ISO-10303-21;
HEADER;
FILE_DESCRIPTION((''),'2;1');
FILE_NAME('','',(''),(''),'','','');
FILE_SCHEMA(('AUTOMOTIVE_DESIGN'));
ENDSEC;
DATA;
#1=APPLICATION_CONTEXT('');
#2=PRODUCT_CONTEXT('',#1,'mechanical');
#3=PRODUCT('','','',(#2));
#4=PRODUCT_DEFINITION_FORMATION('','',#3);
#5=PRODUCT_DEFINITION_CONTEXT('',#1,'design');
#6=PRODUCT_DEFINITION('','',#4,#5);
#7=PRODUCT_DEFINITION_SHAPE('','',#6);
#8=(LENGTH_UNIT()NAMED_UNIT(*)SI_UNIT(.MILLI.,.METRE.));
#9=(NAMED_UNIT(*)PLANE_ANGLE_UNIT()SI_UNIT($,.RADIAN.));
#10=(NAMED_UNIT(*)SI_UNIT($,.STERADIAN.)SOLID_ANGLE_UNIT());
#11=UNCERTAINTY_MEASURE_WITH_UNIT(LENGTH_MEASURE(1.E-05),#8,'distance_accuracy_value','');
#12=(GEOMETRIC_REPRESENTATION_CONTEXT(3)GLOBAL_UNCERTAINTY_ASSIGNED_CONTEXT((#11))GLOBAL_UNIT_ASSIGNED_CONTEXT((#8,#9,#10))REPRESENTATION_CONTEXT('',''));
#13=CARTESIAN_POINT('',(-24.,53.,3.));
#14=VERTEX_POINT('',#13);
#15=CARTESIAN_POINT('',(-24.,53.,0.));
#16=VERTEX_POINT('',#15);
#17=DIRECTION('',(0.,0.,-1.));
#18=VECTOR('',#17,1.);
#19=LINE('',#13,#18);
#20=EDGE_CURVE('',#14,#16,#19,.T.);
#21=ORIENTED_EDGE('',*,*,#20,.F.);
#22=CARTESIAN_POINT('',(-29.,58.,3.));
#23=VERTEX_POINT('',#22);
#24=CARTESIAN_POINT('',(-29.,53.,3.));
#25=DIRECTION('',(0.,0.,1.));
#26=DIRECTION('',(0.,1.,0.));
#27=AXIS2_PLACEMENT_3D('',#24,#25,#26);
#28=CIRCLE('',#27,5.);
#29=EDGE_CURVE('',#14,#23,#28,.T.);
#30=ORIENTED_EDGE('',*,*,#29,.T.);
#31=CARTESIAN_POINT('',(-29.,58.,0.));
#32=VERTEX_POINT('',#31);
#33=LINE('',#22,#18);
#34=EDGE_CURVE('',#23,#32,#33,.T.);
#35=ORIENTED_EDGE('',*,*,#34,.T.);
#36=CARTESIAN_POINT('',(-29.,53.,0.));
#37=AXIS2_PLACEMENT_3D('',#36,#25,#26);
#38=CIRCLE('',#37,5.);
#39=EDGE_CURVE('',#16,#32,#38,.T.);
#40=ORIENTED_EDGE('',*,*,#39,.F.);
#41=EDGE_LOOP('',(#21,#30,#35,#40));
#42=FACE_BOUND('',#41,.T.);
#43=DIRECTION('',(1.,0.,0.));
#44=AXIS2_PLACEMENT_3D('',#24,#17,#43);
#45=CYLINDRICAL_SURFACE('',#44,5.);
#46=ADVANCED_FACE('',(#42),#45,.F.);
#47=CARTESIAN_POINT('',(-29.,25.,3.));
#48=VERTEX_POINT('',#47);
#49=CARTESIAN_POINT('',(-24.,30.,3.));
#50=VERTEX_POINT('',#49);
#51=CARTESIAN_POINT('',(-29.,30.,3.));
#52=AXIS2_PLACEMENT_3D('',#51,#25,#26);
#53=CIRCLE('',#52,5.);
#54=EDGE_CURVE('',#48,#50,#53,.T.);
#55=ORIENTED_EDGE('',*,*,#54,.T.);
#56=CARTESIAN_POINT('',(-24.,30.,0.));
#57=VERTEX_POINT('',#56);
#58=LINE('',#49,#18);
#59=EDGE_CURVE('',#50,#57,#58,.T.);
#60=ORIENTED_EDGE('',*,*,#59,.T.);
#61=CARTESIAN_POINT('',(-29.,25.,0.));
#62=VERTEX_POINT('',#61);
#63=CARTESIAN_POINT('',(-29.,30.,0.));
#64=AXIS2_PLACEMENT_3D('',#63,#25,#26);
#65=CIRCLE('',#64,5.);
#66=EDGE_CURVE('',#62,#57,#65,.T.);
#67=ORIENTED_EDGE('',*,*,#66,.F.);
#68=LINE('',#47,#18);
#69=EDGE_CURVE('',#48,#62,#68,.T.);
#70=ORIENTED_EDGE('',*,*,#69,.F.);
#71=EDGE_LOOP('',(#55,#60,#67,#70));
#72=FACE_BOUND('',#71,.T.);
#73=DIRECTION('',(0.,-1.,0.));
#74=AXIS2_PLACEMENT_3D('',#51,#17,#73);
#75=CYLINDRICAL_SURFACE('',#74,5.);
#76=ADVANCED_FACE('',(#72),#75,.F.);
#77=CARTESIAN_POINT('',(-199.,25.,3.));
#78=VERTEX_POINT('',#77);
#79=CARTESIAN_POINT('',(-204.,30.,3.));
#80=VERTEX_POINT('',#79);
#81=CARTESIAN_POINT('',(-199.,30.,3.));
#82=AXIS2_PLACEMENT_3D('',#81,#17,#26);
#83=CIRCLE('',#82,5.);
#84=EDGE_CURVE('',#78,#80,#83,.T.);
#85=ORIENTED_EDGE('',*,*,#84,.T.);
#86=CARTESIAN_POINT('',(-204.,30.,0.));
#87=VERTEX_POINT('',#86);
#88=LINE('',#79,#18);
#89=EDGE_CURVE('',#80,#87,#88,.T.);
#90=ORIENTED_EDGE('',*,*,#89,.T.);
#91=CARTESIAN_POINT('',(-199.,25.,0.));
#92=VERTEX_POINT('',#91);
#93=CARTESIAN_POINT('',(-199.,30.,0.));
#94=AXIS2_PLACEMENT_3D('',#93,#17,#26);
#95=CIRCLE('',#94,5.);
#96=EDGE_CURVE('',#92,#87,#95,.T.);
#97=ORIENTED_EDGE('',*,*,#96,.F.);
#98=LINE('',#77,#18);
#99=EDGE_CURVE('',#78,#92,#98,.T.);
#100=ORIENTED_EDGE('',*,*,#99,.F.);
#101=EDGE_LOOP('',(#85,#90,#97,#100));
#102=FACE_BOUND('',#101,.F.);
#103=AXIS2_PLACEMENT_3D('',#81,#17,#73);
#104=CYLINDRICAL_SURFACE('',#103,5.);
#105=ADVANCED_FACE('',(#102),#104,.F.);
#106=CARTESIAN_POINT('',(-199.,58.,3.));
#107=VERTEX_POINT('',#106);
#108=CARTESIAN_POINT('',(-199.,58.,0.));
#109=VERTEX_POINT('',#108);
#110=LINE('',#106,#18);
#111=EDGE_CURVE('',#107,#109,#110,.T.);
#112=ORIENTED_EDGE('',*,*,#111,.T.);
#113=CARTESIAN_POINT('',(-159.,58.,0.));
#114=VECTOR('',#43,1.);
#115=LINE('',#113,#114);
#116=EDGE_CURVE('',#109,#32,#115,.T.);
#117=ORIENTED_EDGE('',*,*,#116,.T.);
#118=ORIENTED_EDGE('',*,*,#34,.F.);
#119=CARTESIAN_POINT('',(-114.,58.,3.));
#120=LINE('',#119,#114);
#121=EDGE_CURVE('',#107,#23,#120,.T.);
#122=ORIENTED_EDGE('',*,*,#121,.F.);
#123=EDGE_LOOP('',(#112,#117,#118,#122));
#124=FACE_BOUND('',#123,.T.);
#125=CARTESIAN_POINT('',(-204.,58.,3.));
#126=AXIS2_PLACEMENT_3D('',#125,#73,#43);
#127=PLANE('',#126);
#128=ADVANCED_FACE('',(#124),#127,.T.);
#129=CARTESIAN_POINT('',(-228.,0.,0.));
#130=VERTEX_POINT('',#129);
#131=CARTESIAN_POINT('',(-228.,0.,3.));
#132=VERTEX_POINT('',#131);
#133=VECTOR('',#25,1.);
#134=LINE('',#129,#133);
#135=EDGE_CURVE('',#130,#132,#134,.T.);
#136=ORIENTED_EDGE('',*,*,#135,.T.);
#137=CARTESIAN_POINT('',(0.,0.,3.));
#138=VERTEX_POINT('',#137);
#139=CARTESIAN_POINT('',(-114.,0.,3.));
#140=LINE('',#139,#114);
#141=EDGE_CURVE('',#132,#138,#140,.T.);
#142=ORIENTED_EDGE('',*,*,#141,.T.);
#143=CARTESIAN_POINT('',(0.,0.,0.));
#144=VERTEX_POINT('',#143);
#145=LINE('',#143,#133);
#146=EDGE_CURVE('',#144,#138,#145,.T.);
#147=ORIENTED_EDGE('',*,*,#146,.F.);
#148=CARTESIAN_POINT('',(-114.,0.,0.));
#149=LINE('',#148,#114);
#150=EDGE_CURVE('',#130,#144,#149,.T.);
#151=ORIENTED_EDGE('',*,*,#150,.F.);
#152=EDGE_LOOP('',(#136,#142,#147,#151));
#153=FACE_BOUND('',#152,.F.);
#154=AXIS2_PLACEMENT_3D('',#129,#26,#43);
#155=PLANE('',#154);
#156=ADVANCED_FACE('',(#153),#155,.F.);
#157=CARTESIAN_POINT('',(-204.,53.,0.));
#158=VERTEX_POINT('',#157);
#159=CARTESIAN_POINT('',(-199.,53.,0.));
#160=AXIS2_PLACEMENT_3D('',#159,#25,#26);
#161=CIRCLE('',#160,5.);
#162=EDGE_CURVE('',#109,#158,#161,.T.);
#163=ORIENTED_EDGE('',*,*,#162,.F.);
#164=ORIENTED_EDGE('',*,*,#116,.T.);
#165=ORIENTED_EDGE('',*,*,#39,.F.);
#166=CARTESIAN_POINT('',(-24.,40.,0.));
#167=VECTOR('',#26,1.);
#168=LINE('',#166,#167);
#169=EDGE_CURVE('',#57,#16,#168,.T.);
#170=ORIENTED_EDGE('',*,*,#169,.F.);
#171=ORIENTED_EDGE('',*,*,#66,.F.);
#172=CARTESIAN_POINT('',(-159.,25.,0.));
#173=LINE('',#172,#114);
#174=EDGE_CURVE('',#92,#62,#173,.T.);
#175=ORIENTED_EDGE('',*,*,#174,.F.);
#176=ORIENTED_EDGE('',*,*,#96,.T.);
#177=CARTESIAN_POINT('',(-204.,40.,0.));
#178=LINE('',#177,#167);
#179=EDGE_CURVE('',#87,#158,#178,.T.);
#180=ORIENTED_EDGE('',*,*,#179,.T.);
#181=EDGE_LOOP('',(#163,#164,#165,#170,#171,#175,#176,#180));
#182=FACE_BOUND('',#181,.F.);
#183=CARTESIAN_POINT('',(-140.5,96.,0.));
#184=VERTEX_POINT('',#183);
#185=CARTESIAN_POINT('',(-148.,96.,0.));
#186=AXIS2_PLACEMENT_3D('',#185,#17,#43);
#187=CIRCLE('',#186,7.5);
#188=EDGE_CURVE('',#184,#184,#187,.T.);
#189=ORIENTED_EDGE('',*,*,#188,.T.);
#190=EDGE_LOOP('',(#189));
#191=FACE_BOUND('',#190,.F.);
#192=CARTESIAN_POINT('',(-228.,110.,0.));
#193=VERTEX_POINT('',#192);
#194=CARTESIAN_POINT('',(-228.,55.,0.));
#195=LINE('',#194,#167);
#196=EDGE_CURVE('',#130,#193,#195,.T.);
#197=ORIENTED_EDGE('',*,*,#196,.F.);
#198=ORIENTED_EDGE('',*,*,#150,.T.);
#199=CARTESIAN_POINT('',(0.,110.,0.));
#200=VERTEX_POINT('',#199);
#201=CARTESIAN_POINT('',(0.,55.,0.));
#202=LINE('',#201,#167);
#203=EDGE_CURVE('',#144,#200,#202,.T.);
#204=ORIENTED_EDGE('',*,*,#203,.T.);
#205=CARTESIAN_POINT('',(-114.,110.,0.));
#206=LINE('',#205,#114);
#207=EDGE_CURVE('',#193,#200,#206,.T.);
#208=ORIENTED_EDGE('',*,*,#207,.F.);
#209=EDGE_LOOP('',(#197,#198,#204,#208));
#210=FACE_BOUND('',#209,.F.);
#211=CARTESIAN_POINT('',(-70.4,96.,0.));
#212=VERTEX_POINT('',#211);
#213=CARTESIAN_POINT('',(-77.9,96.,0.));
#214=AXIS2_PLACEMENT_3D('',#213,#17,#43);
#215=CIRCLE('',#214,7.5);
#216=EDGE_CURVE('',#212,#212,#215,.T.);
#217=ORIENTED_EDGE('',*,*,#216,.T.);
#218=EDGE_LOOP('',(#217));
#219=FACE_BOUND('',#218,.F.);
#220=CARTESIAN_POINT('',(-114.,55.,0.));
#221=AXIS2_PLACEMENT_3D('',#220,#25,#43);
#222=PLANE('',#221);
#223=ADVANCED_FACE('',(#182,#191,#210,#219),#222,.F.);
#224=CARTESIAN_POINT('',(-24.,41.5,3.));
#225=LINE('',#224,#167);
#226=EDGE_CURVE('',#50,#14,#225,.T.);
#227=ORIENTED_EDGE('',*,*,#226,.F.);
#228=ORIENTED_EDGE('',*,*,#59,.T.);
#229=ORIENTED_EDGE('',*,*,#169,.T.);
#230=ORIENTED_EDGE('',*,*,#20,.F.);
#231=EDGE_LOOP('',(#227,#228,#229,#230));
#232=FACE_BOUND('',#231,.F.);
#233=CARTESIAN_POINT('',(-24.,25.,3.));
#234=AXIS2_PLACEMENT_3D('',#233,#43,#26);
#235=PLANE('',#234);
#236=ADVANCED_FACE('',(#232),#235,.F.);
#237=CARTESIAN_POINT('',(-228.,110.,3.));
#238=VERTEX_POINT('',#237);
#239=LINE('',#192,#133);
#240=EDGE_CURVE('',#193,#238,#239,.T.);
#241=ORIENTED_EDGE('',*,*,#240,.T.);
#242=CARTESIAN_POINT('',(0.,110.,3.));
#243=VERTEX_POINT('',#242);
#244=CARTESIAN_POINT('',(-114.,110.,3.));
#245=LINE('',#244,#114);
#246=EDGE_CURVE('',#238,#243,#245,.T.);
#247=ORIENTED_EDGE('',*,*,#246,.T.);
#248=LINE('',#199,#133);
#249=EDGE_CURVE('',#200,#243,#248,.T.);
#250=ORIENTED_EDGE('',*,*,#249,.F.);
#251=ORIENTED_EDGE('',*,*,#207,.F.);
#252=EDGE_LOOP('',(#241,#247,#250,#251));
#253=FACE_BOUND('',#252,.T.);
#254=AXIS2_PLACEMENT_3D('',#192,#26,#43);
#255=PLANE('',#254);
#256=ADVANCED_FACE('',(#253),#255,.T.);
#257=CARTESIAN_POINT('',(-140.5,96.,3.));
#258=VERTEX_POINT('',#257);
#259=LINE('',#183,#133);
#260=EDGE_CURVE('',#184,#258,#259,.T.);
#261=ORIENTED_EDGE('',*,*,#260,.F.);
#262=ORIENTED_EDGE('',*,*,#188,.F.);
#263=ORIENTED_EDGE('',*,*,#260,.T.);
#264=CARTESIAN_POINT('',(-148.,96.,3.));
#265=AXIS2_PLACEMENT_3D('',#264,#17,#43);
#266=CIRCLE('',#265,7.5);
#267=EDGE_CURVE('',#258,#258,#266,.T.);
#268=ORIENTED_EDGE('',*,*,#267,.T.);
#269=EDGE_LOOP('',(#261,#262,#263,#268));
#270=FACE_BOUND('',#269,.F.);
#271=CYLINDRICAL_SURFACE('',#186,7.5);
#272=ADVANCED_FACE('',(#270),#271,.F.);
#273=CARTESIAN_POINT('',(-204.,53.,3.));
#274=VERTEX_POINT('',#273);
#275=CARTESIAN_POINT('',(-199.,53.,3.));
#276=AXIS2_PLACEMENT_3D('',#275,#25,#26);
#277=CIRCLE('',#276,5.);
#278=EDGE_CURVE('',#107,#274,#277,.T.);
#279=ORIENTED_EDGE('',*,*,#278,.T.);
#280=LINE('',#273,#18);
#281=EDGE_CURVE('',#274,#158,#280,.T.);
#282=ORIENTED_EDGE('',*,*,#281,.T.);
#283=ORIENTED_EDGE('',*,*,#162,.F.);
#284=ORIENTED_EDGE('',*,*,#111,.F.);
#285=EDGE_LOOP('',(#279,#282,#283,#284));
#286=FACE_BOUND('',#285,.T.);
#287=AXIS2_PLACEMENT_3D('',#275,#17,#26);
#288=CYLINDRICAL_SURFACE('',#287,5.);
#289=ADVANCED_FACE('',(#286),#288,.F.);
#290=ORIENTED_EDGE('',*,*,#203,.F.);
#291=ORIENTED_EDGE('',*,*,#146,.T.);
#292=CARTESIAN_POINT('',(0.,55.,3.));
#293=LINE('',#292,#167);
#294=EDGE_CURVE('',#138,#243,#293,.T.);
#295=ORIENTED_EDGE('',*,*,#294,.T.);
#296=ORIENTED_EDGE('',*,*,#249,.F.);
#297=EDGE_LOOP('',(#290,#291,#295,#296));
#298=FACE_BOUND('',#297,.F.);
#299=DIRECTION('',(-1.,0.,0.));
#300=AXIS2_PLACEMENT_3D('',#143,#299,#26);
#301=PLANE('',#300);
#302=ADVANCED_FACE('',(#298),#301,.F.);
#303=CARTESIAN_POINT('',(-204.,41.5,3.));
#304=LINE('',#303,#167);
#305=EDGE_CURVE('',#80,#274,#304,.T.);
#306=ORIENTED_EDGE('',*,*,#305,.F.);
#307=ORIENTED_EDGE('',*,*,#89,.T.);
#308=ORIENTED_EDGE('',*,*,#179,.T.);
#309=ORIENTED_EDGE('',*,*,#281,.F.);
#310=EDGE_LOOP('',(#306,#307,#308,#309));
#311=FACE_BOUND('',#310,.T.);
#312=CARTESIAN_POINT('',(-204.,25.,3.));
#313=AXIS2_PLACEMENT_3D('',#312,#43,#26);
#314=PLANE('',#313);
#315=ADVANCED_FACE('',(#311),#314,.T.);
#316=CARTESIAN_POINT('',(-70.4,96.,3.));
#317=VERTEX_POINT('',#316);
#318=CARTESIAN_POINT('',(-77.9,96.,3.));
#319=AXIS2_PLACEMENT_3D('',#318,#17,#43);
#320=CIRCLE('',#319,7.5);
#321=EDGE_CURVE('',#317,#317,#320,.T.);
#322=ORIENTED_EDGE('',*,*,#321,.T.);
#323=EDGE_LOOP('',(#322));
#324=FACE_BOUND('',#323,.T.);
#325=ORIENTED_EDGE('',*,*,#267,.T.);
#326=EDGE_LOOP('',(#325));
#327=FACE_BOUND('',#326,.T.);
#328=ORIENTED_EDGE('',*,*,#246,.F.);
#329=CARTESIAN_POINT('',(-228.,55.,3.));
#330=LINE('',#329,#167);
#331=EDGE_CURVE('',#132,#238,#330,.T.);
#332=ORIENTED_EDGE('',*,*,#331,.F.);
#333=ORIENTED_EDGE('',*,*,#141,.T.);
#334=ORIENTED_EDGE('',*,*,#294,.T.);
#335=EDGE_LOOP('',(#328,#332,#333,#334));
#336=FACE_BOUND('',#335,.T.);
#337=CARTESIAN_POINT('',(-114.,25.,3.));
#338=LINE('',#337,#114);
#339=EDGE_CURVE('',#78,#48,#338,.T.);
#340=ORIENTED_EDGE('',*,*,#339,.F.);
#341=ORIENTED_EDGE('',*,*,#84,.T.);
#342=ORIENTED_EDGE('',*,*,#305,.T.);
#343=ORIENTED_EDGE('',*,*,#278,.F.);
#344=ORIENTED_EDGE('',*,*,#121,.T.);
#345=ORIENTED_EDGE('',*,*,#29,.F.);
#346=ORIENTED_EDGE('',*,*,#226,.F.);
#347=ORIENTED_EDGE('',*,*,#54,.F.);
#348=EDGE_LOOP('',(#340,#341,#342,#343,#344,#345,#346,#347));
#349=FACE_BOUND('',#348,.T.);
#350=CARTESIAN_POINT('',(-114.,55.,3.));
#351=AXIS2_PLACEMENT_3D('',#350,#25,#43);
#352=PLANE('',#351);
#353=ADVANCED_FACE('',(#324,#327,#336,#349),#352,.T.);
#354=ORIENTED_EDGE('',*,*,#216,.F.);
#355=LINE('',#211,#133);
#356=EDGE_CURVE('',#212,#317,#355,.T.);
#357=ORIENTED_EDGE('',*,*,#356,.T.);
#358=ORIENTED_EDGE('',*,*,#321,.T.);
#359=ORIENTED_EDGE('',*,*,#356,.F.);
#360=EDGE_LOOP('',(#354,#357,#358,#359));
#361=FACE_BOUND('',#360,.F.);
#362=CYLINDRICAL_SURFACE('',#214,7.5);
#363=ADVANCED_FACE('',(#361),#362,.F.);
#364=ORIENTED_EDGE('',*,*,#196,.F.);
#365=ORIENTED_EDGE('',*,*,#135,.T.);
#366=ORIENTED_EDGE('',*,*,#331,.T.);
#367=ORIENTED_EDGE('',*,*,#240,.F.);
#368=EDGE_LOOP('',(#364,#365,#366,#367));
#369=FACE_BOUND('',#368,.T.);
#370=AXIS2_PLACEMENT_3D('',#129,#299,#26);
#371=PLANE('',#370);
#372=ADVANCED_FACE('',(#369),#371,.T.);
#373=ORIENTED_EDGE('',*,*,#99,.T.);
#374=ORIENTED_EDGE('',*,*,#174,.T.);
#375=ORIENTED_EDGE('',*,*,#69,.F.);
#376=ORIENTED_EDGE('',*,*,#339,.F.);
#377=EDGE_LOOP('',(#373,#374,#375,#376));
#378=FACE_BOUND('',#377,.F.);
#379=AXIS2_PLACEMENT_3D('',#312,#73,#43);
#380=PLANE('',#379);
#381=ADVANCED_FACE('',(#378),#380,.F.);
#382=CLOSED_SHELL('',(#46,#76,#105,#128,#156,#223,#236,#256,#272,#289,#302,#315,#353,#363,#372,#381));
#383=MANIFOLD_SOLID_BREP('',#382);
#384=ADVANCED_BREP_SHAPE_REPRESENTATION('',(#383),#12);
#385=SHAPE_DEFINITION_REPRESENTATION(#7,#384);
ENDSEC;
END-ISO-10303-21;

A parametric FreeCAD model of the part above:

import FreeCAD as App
import Part
import Sketcher
Q = App.Units.Quantity


def edges_at(feature, points):
    """Names of the edges that pass closest to the given points."""
    edges = feature.Shape.Edges
    near = lambda p: min(range(len(edges)), key=lambda i: edges[i].distToShape(Part.Vertex(*p))[0])
    return sorted({f"Edge{near(p) + 1}" for p in points})

doc = App.newDocument("Part")
body = doc.addObject("PartDesign::Body", "Body")

# Sketch on XY plane
sketch1 = body.newObject("Sketcher::SketchObject", "Sketch")
sketch1.AttachmentSupport = (doc.getObject("XY_Plane"), [""])
sketch1.MapMode = "FlatFace"
sketch1.addGeometry(Part.LineSegment(App.Vector(-228, 110, 0), App.Vector(-228, 0, 0)), False)
sketch1.addGeometry(Part.LineSegment(App.Vector(-228, 0, 0), App.Vector(0, 0, 0)), False)
sketch1.addGeometry(Part.LineSegment(App.Vector(0, 0, 0), App.Vector(0, 110, 0)), False)
sketch1.addGeometry(Part.LineSegment(App.Vector(0, 110, 0), App.Vector(-228, 110, 0)), False)
sketch1.addConstraint(Sketcher.Constraint("Coincident", 0, 2, 1, 1))
sketch1.addConstraint(Sketcher.Constraint("Coincident", 1, 2, 2, 1))
sketch1.addConstraint(Sketcher.Constraint("Coincident", 2, 2, 3, 1))
sketch1.addConstraint(Sketcher.Constraint("Coincident", 3, 2, 0, 1))
sketch1.addConstraint(Sketcher.Constraint("Vertical", 0))
sketch1.addConstraint(Sketcher.Constraint("Horizontal", 1))
sketch1.addConstraint(Sketcher.Constraint("Vertical", 2))
sketch1.addConstraint(Sketcher.Constraint("Horizontal", 3))
sketch1.addConstraint(Sketcher.Constraint("Coincident", 1, 2, -1, 1))
sketch1.addConstraint(Sketcher.Constraint("DistanceX", 1, 1, 1, 2, Q("228 mm")))
sketch1.addConstraint(Sketcher.Constraint("DistanceY", 0, 2, 0, 1, Q("110 mm")))
pad1 = body.newObject("PartDesign::Pad", "Pad")
pad1.Profile = sketch1
pad1.Length = 3

# Sketch on XY plane
sketch2 = body.newObject("Sketcher::SketchObject", "Sketch001")
sketch2.AttachmentSupport = (doc.getObject("XY_Plane"), [""])
sketch2.MapMode = "FlatFace"
sketch2.AttachmentOffset = App.Placement(App.Vector(0, 0, 3), App.Rotation())
sketch2.addGeometry(Part.LineSegment(App.Vector(-204, 58, 0), App.Vector(-204, 25, 0)), False)
sketch2.addGeometry(Part.LineSegment(App.Vector(-204, 25, 0), App.Vector(-24, 25, 0)), False)
sketch2.addGeometry(Part.LineSegment(App.Vector(-24, 25, 0), App.Vector(-24, 58, 0)), False)
sketch2.addGeometry(Part.LineSegment(App.Vector(-24, 58, 0), App.Vector(-204, 58, 0)), False)
sketch2.addConstraint(Sketcher.Constraint("Coincident", 0, 2, 1, 1))
sketch2.addConstraint(Sketcher.Constraint("Coincident", 1, 2, 2, 1))
sketch2.addConstraint(Sketcher.Constraint("Coincident", 2, 2, 3, 1))
sketch2.addConstraint(Sketcher.Constraint("Coincident", 3, 2, 0, 1))
sketch2.addConstraint(Sketcher.Constraint("Vertical", 0))
sketch2.addConstraint(Sketcher.Constraint("Horizontal", 1))
sketch2.addConstraint(Sketcher.Constraint("Vertical", 2))
sketch2.addConstraint(Sketcher.Constraint("Horizontal", 3))
sketch2.addConstraint(Sketcher.Constraint("DistanceX", 1, 1, 1, 2, Q("180 mm")))
sketch2.addConstraint(Sketcher.Constraint("DistanceY", 0, 2, 0, 1, Q("33 mm")))
sketch2.addConstraint(Sketcher.Constraint("DistanceX", 0, 2, -1, 1, Q("204 mm")))
sketch2.addConstraint(Sketcher.Constraint("DistanceY", -1, 1, 0, 2, Q("25 mm")))
pocket1 = body.newObject("PartDesign::Pocket", "Pocket")
pocket1.Profile = sketch2
pocket1.Length = 25
doc.recompute()

fillet = body.newObject("PartDesign::Fillet", "Fillet")
fillet.Base = (pocket1, edges_at(pocket1, [
    (-24, 25, 1.5),
    (-24, 58, 1.5),
    (-204, 58, 1.5),
    (-204, 25, 1.5),
]))
fillet.Radius = 5

# Sketch on XY plane
sketch3 = body.newObject("Sketcher::SketchObject", "Sketch002")
sketch3.AttachmentSupport = (doc.getObject("XY_Plane"), [""])
sketch3.MapMode = "FlatFace"
sketch3.addGeometry(Part.Circle(App.Vector(-148, 96, 0), App.Vector(0, 0, 1), 8), False)
sketch3.addGeometry(Part.Circle(App.Vector(-78, 96, 0), App.Vector(0, 0, 1), 8), False)
sketch3.addConstraint(Sketcher.Constraint("Equal", 0, 1))
sketch3.addConstraint(Sketcher.Constraint("Horizontal", 0, 3, 1, 3))
sketch3.addConstraint(Sketcher.Constraint("Diameter", 0, Q("15 mm")))
sketch3.addConstraint(Sketcher.Constraint("DistanceX", 0, 3, -1, 1, Q("148 mm")))
sketch3.addConstraint(Sketcher.Constraint("DistanceY", -1, 1, 0, 3, Q("96 mm")))
sketch3.addConstraint(Sketcher.Constraint("DistanceX", 1, 3, -1, 1, Q("77.9 mm")))
pocket2 = body.newObject("PartDesign::Pocket", "Pocket001")
pocket2.Profile = sketch3
pocket2.Length = 25
pocket2.Reversed = True

doc.recompute()
